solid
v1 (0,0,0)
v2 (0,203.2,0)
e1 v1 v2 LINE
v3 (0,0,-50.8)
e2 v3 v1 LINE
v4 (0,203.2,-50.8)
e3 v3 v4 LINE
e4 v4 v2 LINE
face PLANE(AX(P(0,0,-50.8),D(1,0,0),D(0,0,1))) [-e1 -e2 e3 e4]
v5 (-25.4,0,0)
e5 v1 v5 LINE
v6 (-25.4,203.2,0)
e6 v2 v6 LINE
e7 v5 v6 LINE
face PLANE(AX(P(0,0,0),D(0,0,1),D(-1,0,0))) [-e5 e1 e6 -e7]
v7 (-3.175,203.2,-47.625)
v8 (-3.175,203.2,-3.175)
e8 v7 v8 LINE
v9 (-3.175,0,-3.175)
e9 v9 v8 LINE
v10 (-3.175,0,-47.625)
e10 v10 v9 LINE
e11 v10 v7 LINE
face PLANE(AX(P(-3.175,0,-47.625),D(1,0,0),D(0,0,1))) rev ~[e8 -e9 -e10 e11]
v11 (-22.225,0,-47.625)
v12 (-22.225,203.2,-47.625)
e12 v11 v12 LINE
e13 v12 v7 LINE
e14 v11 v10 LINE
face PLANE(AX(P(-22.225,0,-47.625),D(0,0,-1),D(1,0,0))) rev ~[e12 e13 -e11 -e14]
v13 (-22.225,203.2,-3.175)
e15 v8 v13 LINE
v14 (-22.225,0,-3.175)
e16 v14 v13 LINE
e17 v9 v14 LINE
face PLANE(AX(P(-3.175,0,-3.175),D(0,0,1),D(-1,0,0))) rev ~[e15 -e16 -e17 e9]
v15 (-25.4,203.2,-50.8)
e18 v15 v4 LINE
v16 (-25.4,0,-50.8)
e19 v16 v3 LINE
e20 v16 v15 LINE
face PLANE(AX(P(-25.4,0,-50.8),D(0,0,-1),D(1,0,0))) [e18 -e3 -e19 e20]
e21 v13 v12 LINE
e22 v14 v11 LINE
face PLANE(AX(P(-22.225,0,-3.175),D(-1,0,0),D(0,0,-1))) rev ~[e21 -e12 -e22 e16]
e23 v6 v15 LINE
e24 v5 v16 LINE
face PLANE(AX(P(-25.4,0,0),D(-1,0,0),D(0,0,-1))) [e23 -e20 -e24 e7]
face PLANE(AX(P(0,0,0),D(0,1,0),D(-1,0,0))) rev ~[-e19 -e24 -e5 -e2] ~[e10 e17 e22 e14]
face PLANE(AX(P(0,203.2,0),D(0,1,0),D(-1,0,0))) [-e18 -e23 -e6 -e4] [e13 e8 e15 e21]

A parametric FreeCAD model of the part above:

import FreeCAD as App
import Part
import Sketcher

V = App.Vector
Q = App.Units.Quantity

doc = App.newDocument("Part")
body = doc.addObject("PartDesign::Body", "Body")

# Sketch on XZ plane
sketch1 = doc.addObject("Sketcher::SketchObject", "Sketch")
body.addObject(sketch1)
sketch1.AttachmentSupport = (doc.XZ_Plane, [""])
sketch1.MapMode = "FlatFace"
sketch1.addGeometry(Part.LineSegment(V(-25, 0, 0), V(0, 0, 0)), False)
sketch1.addGeometry(Part.LineSegment(V(0, 0, 0), V(0, -51, 0)), False)
sketch1.addGeometry(Part.LineSegment(V(0, -51, 0), V(-25, -51, 0)), False)
sketch1.addGeometry(Part.LineSegment(V(-25, -51, 0), V(-25, 0, 0)), False)
sketch1.addGeometry(Part.LineSegment(V(-3, -48, 0), V(-3, -3, 0)), False)
sketch1.addGeometry(Part.LineSegment(V(-3, -3, 0), V(-22, -3, 0)), False)
sketch1.addGeometry(Part.LineSegment(V(-22, -3, 0), V(-22, -48, 0)), False)
sketch1.addGeometry(Part.LineSegment(V(-22, -48, 0), V(-3, -48, 0)), False)
sketch1.addConstraint(Sketcher.Constraint("Coincident", 0, 2, 1, 1))
sketch1.addConstraint(Sketcher.Constraint("Coincident", 1, 2, 2, 1))
sketch1.addConstraint(Sketcher.Constraint("Coincident", 2, 2, 3, 1))
sketch1.addConstraint(Sketcher.Constraint("Coincident", 3, 2, 0, 1))
sketch1.addConstraint(Sketcher.Constraint("Coincident", 4, 2, 5, 1))
sketch1.addConstraint(Sketcher.Constraint("Coincident", 5, 2, 6, 1))
sketch1.addConstraint(Sketcher.Constraint("Coincident", 6, 2, 7, 1))
sketch1.addConstraint(Sketcher.Constraint("Coincident", 7, 2, 4, 1))
sketch1.addConstraint(Sketcher.Constraint("Horizontal", 0))
sketch1.addConstraint(Sketcher.Constraint("Vertical", 1))
sketch1.addConstraint(Sketcher.Constraint("Horizontal", 2))
sketch1.addConstraint(Sketcher.Constraint("Vertical", 3))
sketch1.addConstraint(Sketcher.Constraint("Vertical", 4))
sketch1.addConstraint(Sketcher.Constraint("Horizontal", 5))
sketch1.addConstraint(Sketcher.Constraint("Vertical", 6))
sketch1.addConstraint(Sketcher.Constraint("Horizontal", 7))
sketch1.addConstraint(Sketcher.Constraint("Coincident", 0, 2, -1, 1))
sketch1.addConstraint(Sketcher.Constraint("DistanceX", 0, 1, 0, 2, Q("1 in")))
sketch1.addConstraint(Sketcher.Constraint("DistanceY", 1, 2, 1, 1, Q("2 in")))
sketch1.addConstraint(Sketcher.Constraint("DistanceX", 4, 2, -1, 1, Q("0.125 in")))
sketch1.addConstraint(Sketcher.Constraint("DistanceY", 4, 2, -1, 1, Q("0.125 in")))
sketch1.addConstraint(Sketcher.Constraint("DistanceX", 3, 2, 5, 2, Q("0.125 in")))
sketch1.addConstraint(Sketcher.Constraint("DistanceY", 2, 2, 6, 2, Q("0.125 in")))
pad1 = doc.addObject("PartDesign::Pad", "Pad")
body.addObject(pad1)
pad1.Profile = sketch1
pad1.Length = Q("8 in")
pad1.Reversed = True

doc.recompute()
